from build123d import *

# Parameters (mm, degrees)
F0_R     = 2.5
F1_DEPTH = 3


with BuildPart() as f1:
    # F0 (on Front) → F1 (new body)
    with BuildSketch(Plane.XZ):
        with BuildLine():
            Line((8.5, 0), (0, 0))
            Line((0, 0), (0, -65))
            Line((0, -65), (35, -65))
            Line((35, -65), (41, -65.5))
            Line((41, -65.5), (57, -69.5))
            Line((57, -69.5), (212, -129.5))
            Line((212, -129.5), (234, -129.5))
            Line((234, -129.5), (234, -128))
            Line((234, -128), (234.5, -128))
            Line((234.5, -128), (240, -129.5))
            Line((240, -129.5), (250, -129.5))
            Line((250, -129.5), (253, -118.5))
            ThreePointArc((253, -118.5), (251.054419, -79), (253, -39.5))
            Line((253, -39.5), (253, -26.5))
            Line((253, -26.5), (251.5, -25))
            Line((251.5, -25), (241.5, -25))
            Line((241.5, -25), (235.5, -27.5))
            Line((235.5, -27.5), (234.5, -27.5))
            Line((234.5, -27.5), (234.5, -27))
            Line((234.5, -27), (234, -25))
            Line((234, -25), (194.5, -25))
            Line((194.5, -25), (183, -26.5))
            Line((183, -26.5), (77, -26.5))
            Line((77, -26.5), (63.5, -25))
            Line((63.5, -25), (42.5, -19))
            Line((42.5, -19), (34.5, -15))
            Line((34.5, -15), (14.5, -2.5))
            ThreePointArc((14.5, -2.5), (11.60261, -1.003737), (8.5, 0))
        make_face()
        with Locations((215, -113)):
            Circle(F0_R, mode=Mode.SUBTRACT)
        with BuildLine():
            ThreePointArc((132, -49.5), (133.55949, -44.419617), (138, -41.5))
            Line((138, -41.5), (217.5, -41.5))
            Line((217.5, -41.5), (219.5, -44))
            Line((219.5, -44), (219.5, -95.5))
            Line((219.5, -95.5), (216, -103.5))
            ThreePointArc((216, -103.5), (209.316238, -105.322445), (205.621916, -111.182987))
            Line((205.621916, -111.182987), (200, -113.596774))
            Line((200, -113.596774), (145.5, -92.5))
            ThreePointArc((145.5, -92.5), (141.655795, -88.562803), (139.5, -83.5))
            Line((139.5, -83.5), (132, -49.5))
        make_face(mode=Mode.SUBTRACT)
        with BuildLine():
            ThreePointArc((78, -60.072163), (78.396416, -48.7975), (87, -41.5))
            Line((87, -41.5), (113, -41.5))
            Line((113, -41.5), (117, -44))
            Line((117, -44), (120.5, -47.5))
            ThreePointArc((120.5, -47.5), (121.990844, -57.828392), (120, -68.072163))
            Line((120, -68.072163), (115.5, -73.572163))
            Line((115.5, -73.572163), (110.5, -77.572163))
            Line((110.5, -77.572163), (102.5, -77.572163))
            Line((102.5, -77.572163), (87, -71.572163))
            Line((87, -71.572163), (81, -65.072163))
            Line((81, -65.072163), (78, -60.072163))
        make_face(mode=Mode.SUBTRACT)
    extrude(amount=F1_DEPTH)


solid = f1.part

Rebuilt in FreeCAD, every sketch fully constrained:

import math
import FreeCAD as App
import Part
import Sketcher
Q = App.Units.Quantity

doc = App.newDocument("Part")
params = doc.addObject("Spreadsheet::Sheet", "Params")
for row, (alias, value) in enumerate([
    ("sketch1_diameter", "5 mm"),
    ("sketch1_width", "35 mm"),
    ("sketch1_width2", "22 mm"),
    ("sketch1_width3", "10 mm"),
    ("sketch1_width4", "1 mm"),
    ("pad1_length", "3 mm"),
], start=1):
    params.set(f"A{row}", alias)
    params.set(f"B{row}", "=" + value)
    params.setAlias(f"B{row}", alias)

body = doc.addObject("PartDesign::Body", "Body")

# Sketch on XZ plane
sketch1 = doc.addObject("Sketcher::SketchObject", "Sketch")
body.addObject(sketch1)
sketch1.AttachmentSupport = (doc.XZ_Plane, [""])
sketch1.MapMode = "FlatFace"
sketch1.addGeometry([
    Part.LineSegment(App.Vector(8.5, 0, 0), App.Vector(0, 0, 0)),  # 0
    Part.LineSegment(App.Vector(0, 0, 0), App.Vector(0, -65, 0)),  # 1
    Part.LineSegment(App.Vector(0, -65, 0), App.Vector(35, -65, 0)),  # 2
    Part.LineSegment(App.Vector(35, -65, 0), App.Vector(41, -65.5, 0)),  # 3
    Part.LineSegment(App.Vector(41, -65.5, 0), App.Vector(57, -69.5, 0)),  # 4
    Part.LineSegment(App.Vector(57, -69.5, 0), App.Vector(212, -129.5, 0)),  # 5
    Part.LineSegment(App.Vector(212, -129.5, 0), App.Vector(234, -129.5, 0)),  # 6
    Part.LineSegment(App.Vector(234, -129.5, 0), App.Vector(234, -128, 0)),  # 7
    Part.LineSegment(App.Vector(234, -128, 0), App.Vector(234.5, -128, 0)),  # 8
    Part.LineSegment(App.Vector(234.5, -128, 0), App.Vector(240, -129.5, 0)),  # 9
    Part.LineSegment(App.Vector(240, -129.5, 0), App.Vector(250, -129.5, 0)),  # 10
    Part.LineSegment(App.Vector(250, -129.5, 0), App.Vector(253, -118.5, 0)),  # 11
    Part.ArcOfCircle(Part.Circle(App.Vector(652.999978, -79, 0), App.Vector(0, 0, 1), 401.945559), math.radians(174.360326), math.radians(185.639674)),  # 12
    Part.LineSegment(App.Vector(253, -39.5, 0), App.Vector(253, -26.5, 0)),  # 13
    Part.LineSegment(App.Vector(253, -26.5, 0), App.Vector(251.5, -25, 0)),  # 14
    Part.LineSegment(App.Vector(251.5, -25, 0), App.Vector(241.5, -25, 0)),  # 15
    Part.LineSegment(App.Vector(241.5, -25, 0), App.Vector(235.5, -27.5, 0)),  # 16
    Part.LineSegment(App.Vector(235.5, -27.5, 0), App.Vector(234.5, -27.5, 0)),  # 17
    Part.LineSegment(App.Vector(234.5, -27.5, 0), App.Vector(234.5, -27, 0)),  # 18
    Part.LineSegment(App.Vector(234.5, -27, 0), App.Vector(234, -25, 0)),  # 19
    Part.LineSegment(App.Vector(234, -25, 0), App.Vector(194.5, -25, 0)),  # 20
    Part.LineSegment(App.Vector(194.5, -25, 0), App.Vector(183, -26.5, 0)),  # 21
    Part.LineSegment(App.Vector(183, -26.5, 0), App.Vector(77, -26.5, 0)),  # 22
    Part.LineSegment(App.Vector(77, -26.5, 0), App.Vector(63.5, -25, 0)),  # 23
    Part.LineSegment(App.Vector(63.5, -25, 0), App.Vector(42.5, -19, 0)),  # 24
    Part.LineSegment(App.Vector(42.5, -19, 0), App.Vector(34.5, -15, 0)),  # 25
    Part.LineSegment(App.Vector(34.5, -15, 0), App.Vector(14.5, -2.5, 0)),  # 26
    Part.ArcOfCircle(Part.Circle(App.Vector(3.937498, -19.400004, 0), App.Vector(0, 0, 1), 19.92929), math.radians(57.994619), math.radians(76.765651)),  # 27
    Part.Circle(App.Vector(215, -113, 0), App.Vector(0, 0, 1), 2.5),  # 28
    Part.LineSegment(App.Vector(81, -65.072163, 0), App.Vector(78, -60.072163, 0)),  # 29
    Part.ArcOfCircle(Part.Circle(App.Vector(90.955037, -54.88336, 0), App.Vector(0, 0, 1), 13.955524), math.radians(106.463409), math.radians(201.827285)),  # 30
    Part.LineSegment(App.Vector(87, -41.5, 0), App.Vector(113, -41.5, 0)),  # 31
    Part.LineSegment(App.Vector(113, -41.5, 0), App.Vector(117, -44, 0)),  # 32
    Part.LineSegment(App.Vector(117, -44, 0), App.Vector(120.5, -47.5, 0)),  # 33
    Part.ArcOfCircle(Part.Circle(App.Vector(90.731865, -57.068652, 0), App.Vector(0, 0, 1), 31.26821), math.radians(-20.604017), math.radians(17.819453)),  # 34
    Part.LineSegment(App.Vector(120, -68.072163, 0), App.Vector(115.5, -73.572163, 0)),  # 35
    Part.LineSegment(App.Vector(115.5, -73.572163, 0), App.Vector(110.5, -77.572163, 0)),  # 36
    Part.LineSegment(App.Vector(110.5, -77.572163, 0), App.Vector(102.5, -77.572163, 0)),  # 37
    Part.LineSegment(App.Vector(102.5, -77.572163, 0), App.Vector(87, -71.572163, 0)),  # 38
    Part.LineSegment(App.Vector(87, -71.572163, 0), App.Vector(81, -65.072163, 0)),  # 39
    Part.LineSegment(App.Vector(139.5, -83.5, 0), App.Vector(132, -49.5, 0)),  # 40
    Part.ArcOfCircle(Part.Circle(App.Vector(139.833333, -49.124999, 0), App.Vector(0, 0, 1), 7.842304), math.radians(103.51941), math.radians(182.740795)),  # 41
    Part.LineSegment(App.Vector(138, -41.5, 0), App.Vector(217.5, -41.5, 0)),  # 42
    Part.LineSegment(App.Vector(217.5, -41.5, 0), App.Vector(219.5, -44, 0)),  # 43
    Part.LineSegment(App.Vector(219.5, -44, 0), App.Vector(219.5, -95.5, 0)),  # 44
    Part.LineSegment(App.Vector(219.5, -95.5, 0), App.Vector(216, -103.5, 0)),  # 45
    Part.ArcOfCircle(Part.Circle(App.Vector(215, -112.999999, 0), App.Vector(0, 0, 1), 9.552486), math.radians(83.990992), math.radians(169.034752)),  # 46
    Part.LineSegment(App.Vector(205.621916, -111.182987, 0), App.Vector(200, -113.596774, 0)),  # 47
    Part.LineSegment(App.Vector(200, -113.596774, 0), App.Vector(145.5, -92.5, 0)),  # 48
    Part.ArcOfCircle(Part.Circle(App.Vector(154.071432, -80.285712, 0), App.Vector(0, 0, 1), 14.921739), math.radians(-167.560432), math.radians(-125.059433)),  # 49
], False)
sketch1.addConstraint([
    Sketcher.Constraint("Coincident", 0, 2, 1, 1),
    Sketcher.Constraint("Coincident", 1, 2, 2, 1),
    Sketcher.Constraint("Coincident", 2, 2, 3, 1),
    Sketcher.Constraint("Coincident", 3, 2, 4, 1),
    Sketcher.Constraint("Coincident", 4, 2, 5, 1),
    Sketcher.Constraint("Coincident", 5, 2, 6, 1),
    Sketcher.Constraint("Coincident", 6, 2, 7, 1),
    Sketcher.Constraint("Coincident", 7, 2, 8, 1),
    Sketcher.Constraint("Coincident", 8, 2, 9, 1),
    Sketcher.Constraint("Coincident", 9, 2, 10, 1),
    Sketcher.Constraint("Coincident", 10, 2, 11, 1),
    Sketcher.Constraint("Coincident", 11, 2, 12, 2),
    Sketcher.Constraint("Coincident", 12, 1, 13, 1),
    Sketcher.Constraint("Coincident", 13, 2, 14, 1),
    Sketcher.Constraint("Coincident", 14, 2, 15, 1),
    Sketcher.Constraint("Coincident", 15, 2, 16, 1),
    Sketcher.Constraint("Coincident", 16, 2, 17, 1),
    Sketcher.Constraint("Coincident", 17, 2, 18, 1),
    Sketcher.Constraint("Coincident", 18, 2, 19, 1),
    Sketcher.Constraint("Coincident", 19, 2, 20, 1),
    Sketcher.Constraint("Coincident", 20, 2, 21, 1),
    Sketcher.Constraint("Coincident", 21, 2, 22, 1),
    Sketcher.Constraint("Coincident", 22, 2, 23, 1),
    Sketcher.Constraint("Coincident", 23, 2, 24, 1),
    Sketcher.Constraint("Coincident", 24, 2, 25, 1),
    Sketcher.Constraint("Coincident", 25, 2, 26, 1),
    Sketcher.Constraint("Tangent", 26, 2, 27, 1),
    Sketcher.Constraint("Coincident", 27, 2, 0, 1),
    Sketcher.Constraint("Coincident", 29, 2, 30, 2),
    Sketcher.Constraint("Coincident", 30, 1, 31, 1),
    Sketcher.Constraint("Coincident", 31, 2, 32, 1),
    Sketcher.Constraint("Coincident", 32, 2, 33, 1),
    Sketcher.Constraint("Coincident", 33, 2, 34, 2),
    Sketcher.Constraint("Coincident", 34, 1, 35, 1),
    Sketcher.Constraint("Coincident", 35, 2, 36, 1),
    Sketcher.Constraint("Coincident", 36, 2, 37, 1),
    Sketcher.Constraint("Coincident", 37, 2, 38, 1),
    Sketcher.Constraint("Coincident", 38, 2, 39, 1),
    Sketcher.Constraint("Coincident", 39, 2, 29, 1),
    Sketcher.Constraint("Coincident", 40, 2, 41, 2),
    Sketcher.Constraint("Coincident", 41, 1, 42, 1),
    Sketcher.Constraint("Coincident", 42, 2, 43, 1),
    Sketcher.Constraint("Coincident", 43, 2, 44, 1),
    Sketcher.Constraint("Coincident", 44, 2, 45, 1),
    Sketcher.Constraint("Coincident", 45, 2, 46, 1),
    Sketcher.Constraint("Coincident", 46, 2, 47, 1),
    Sketcher.Constraint("Coincident", 47, 2, 48, 1),
    Sketcher.Constraint("Coincident", 48, 2, 49, 2),
    Sketcher.Constraint("Tangent", 49, 1, 40, 1),
    Sketcher.Constraint("Horizontal", 0),
    Sketcher.Constraint("Vertical", 1),
    Sketcher.Constraint("Horizontal", 2),
    Sketcher.Constraint("Horizontal", 6),
    Sketcher.Constraint("Vertical", 7),
    Sketcher.Constraint("Horizontal", 8),
    Sketcher.Constraint("Horizontal", 10),
    Sketcher.Constraint("Vertical", 13),
    Sketcher.Constraint("Horizontal", 15),
    Sketcher.Constraint("Horizontal", 17),
    Sketcher.Constraint("Vertical", 18),
    Sketcher.Constraint("Horizontal", 20),
    Sketcher.Constraint("Horizontal", 22),
    Sketcher.Constraint("Horizontal", 31),
    Sketcher.Constraint("Horizontal", 37),
    Sketcher.Constraint("Horizontal", 42),
    Sketcher.Constraint("Vertical", 44),
    Sketcher.Constraint("Coincident", 0, 2, -1, 1),
    Sketcher.Constraint("Coincident", 46, 3, 28, 3),
    Sketcher.Constraint("Perpendicular", 9, 11),
    Sketcher.Constraint("Parallel", 26, 32),
    Sketcher.Constraint("Parallel", 14, 33),
    Sketcher.Constraint("Parallel", 5, 38),
    Sketcher.Constraint("Perpendicular", 36, 43),
    Sketcher.Constraint("Parallel", 38, 48),
    Sketcher.Constraint("Horizontal", 6, 2, 9, 2),
    Sketcher.Constraint("Horizontal", 15, 2, 19, 2),
    Sketcher.Constraint("Horizontal", 13, 2, 21, 2),
    Sketcher.Constraint("Horizontal", 20, 2, 23, 2),
    Sketcher.Constraint("Horizontal", 31, 2, 41, 1),
    Sketcher.Constraint("Horizontal", 32, 2, 43, 2),
    Sketcher.Constraint("Vertical", 11, 2, 12, 1),
    Sketcher.Constraint("Vertical", 8, 2, 17, 2),
    Sketcher.Constraint("Vertical", 7, 2, 19, 2),
    Sketcher.Constraint("Vertical", 30, 1, 38, 2),
    Sketcher.Constraint("Equal", 10, 15),
    Sketcher.Constraint("Equal", 8, 18),
    Sketcher.Constraint("Diameter", 28, 5.0),
    Sketcher.Constraint("DistanceX", 2, 1, 2, 2, 35.0),
    Sketcher.Constraint("DistanceX", 6, 1, 6, 2, 22.0),
    Sketcher.Constraint("DistanceX", 10, 1, 10, 2, 10.0),
    Sketcher.Constraint("DistanceX", 17, 2, 17, 1, 1.0),
    Sketcher.Constraint("DistanceX", 22, 2, 22, 1, 106.0),
    Sketcher.Constraint("DistanceX", 31, 1, 31, 2, 26.0),
    Sketcher.Constraint("DistanceX", 37, 2, 37, 1, 8.0),
    Sketcher.Constraint("DistanceY", 1, 2, 1, 1, 65.0),
    Sketcher.Constraint("DistanceY", 13, 1, 13, 2, 13.0),
    Sketcher.Constraint("Angle", 14, Q("135 deg")),
    Sketcher.Constraint("DistanceX", 0, 2, 0, 1, 8.5),
    Sketcher.Constraint("DistanceX", 8, 1, 8, 2, 0.5),
    Sketcher.Constraint("DistanceX", 20, 2, 20, 1, 39.5),
    Sketcher.Constraint("DistanceX", 42, 1, 42, 2, 79.5),
    Sketcher.Constraint("DistanceY", 7, 1, 7, 2, 1.5),
    Sketcher.Constraint("DistanceY", 44, 2, 44, 1, 51.5),
    Sketcher.Constraint("DistanceY", 12, 3, -1, 1, 79.0),
    Sketcher.Constraint("DistanceX", -1, 1, 28, 3, 215.0),
    Sketcher.Constraint("DistanceY", 28, 3, -1, 1, 113.0),
    Sketcher.Constraint("DistanceX", -1, 1, 3, 2, 41.0),
    Sketcher.Constraint("DistanceX", -1, 1, 4, 2, 57.0),
    Sketcher.Constraint("DistanceX", -1, 1, 5, 2, 212.0),
    Sketcher.Constraint("DistanceY", 7, 2, -1, 1, 128.0),
    Sketcher.Constraint("DistanceX", -1, 1, 9, 2, 240.0),
    Sketcher.Constraint("DistanceX", -1, 1, 11, 2, 253.0),
    Sketcher.Constraint("DistanceY", 14, 2, -1, 1, 25.0),
    Sketcher.Constraint("DistanceY", 18, 2, -1, 1, 27.0),
    Sketcher.Constraint("DistanceX", -1, 1, 21, 2, 183.0),
    Sketcher.Constraint("DistanceY", 24, 2, -1, 1, 19.0),
    Sketcher.Constraint("DistanceY", 25, 2, -1, 1, 15.0),
    Sketcher.Constraint("DistanceX", -1, 1, 29, 2, 78.0),
    Sketcher.Constraint("DistanceX", -1, 1, 30, 1, 87.0),
    Sketcher.Constraint("DistanceX", -1, 1, 32, 2, 117.0),
    Sketcher.Constraint("DistanceY", 32, 2, -1, 1, 44.0),
    Sketcher.Constraint("DistanceX", -1, 1, 34, 1, 120.0),
    Sketcher.Constraint("DistanceX", -1, 1, 39, 2, 81.0),
    Sketcher.Constraint("DistanceX", -1, 1, 40, 2, 132.0),
    Sketcher.Constraint("DistanceX", -1, 1, 41, 1, 138.0),
    Sketcher.Constraint("DistanceX", -1, 1, 45, 2, 216.0),
    Sketcher.Constraint("DistanceX", -1, 1, 47, 2, 200.0),
    Sketcher.Constraint("DistanceY", 4, 2, 3, 2, 4.0),
    Sketcher.Constraint("DistanceY", 4, 2, 22, 2, 43.0),
    Sketcher.Constraint("DistanceX", 24, 2, 23, 2, 21.0),
    Sketcher.Constraint("DistanceX", 25, 2, 24, 2, 8.0),
    Sketcher.Constraint("DistanceX", 26, 2, 25, 2, 20.0),
    Sketcher.Constraint("DistanceX", 27, 2, 26, 2, 6.0),
    Sketcher.Constraint("DistanceY", 31, 2, 22, 2, 15.0),
    Sketcher.Constraint("DistanceY", 33, 2, 31, 2, 6.0),
    Sketcher.Constraint("DistanceX", 35, 2, 33, 2, 5.0),
    Sketcher.Constraint("DistanceX", 36, 2, 35, 2, 5.0),
    Sketcher.Constraint("DistanceY", 36, 2, 35, 2, 4.0),
    Sketcher.Constraint("DistanceY", 39, 2, 29, 2, 5.0),
    Sketcher.Constraint("DistanceY", 40, 2, 33, 2, 2.0),
    Sketcher.Constraint("DistanceY", 45, 2, 44, 2, 8.0),
    Sketcher.Constraint("DistanceX", 35, 2, 48, 2, 30.0),
    Sketcher.Constraint("DistanceX", 49, 1, 48, 2, 6.0),
    Sketcher.Constraint("DistanceY", 48, 2, 49, 1, 9.0),
    Sketcher.Constraint("DistanceY", 48, 2, -1, 1, 92.5),
    Sketcher.Constraint("DistanceY", 35, 2, 34, 1, 5.5),
    Sketcher.Constraint("DistanceY", 38, 2, 29, 2, 11.5),
    Sketcher.Constraint("Radius", 12, 401.945559),
    Sketcher.Constraint("Radius", 34, 31.26821),
    Sketcher.Constraint("DistanceY", 41, 3, -1, 1, 49.124999),
    Sketcher.Constraint("Radius", 30, 13.955524),
    Sketcher.Constraint("DistanceY", 30, 3, -1, 1, 54.88336),
    Sketcher.Constraint("Distance", 47, 6.118195),
])
sketch1.setExpression("Constraints[86]", "Params.sketch1_diameter")
sketch1.setExpression("Constraints[87]", "Params.sketch1_width")
sketch1.setExpression("Constraints[88]", "Params.sketch1_width2")
sketch1.setExpression("Constraints[89]", "Params.sketch1_width3")
sketch1.setExpression("Constraints[90]", "Params.sketch1_width4")
pad1 = doc.addObject("PartDesign::Pad", "Pad")
body.addObject(pad1)
pad1.Profile = sketch1
pad1.setExpression("Length", "Params.pad1_length")

doc.recompute()
